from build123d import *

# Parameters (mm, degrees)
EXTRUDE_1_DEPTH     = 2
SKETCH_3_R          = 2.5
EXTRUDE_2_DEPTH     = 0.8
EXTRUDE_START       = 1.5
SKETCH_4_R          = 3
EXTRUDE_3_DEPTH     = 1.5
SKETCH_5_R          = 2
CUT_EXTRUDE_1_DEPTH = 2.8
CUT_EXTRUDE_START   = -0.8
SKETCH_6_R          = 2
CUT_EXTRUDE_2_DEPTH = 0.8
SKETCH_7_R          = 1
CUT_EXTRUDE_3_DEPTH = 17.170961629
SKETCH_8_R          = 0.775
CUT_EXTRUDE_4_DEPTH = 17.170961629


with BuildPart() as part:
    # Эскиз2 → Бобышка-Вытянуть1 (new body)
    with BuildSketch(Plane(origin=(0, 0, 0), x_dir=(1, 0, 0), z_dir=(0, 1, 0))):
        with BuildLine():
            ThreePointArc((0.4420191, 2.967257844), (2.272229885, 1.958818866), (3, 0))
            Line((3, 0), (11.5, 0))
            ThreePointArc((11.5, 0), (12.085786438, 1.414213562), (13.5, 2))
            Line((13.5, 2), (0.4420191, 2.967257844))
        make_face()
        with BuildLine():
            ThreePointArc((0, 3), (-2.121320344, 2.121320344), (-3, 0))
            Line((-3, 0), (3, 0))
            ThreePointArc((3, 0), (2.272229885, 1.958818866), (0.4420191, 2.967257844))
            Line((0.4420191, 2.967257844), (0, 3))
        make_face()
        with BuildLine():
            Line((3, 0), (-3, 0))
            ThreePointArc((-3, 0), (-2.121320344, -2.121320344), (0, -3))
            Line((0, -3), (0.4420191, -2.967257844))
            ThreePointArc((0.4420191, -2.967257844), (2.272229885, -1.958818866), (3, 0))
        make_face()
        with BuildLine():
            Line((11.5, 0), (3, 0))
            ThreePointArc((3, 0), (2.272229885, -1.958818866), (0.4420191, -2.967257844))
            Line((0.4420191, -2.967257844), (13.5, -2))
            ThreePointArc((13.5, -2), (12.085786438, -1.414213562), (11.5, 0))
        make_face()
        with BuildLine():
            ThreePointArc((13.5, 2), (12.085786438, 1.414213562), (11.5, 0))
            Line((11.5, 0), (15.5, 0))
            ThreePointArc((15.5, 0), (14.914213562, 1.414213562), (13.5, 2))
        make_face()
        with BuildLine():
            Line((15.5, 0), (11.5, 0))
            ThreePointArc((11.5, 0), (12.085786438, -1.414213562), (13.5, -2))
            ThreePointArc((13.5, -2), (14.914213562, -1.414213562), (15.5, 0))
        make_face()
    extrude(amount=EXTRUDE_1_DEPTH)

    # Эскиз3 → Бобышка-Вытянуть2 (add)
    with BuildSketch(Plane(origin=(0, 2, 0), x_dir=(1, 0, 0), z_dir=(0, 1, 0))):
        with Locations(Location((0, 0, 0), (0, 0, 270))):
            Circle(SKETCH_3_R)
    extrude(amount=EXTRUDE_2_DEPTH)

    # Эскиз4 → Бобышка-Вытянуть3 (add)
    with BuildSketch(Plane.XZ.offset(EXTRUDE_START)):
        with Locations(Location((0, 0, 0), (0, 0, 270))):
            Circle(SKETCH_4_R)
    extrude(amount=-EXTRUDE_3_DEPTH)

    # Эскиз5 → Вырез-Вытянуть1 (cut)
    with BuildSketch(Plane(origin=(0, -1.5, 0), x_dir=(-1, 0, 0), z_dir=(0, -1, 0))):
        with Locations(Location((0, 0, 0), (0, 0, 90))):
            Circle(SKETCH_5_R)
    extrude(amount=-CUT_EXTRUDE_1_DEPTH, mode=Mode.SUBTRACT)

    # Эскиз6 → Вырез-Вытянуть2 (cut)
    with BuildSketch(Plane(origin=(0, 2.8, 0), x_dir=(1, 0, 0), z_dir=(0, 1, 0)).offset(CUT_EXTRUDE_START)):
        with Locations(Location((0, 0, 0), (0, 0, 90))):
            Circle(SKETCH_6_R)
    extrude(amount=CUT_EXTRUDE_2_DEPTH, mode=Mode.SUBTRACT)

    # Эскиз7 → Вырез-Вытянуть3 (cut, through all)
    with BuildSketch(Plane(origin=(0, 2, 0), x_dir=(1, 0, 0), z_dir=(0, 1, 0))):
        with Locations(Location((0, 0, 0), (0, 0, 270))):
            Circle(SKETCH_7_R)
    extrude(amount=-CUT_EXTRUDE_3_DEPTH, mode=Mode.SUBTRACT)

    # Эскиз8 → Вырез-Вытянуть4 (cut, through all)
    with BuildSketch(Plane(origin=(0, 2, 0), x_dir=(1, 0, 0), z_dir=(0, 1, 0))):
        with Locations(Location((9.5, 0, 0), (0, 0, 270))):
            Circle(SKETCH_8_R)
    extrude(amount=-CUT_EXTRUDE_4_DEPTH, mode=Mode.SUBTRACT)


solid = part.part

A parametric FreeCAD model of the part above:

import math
import FreeCAD as App
import Part
import Sketcher

doc = App.newDocument("Part")
body = doc.addObject("PartDesign::Body", "Body")

sketch1 = body.newObject("Sketcher::SketchObject", "Sketch")
sketch1.AttachmentSupport = (doc.getObject("XZ_Plane"), [""])
sketch1.MapMode = "FlatFace"
sketch1.addGeometry([
    Part.ArcOfCircle(Part.Circle(App.Vector(13.5, 0, 0), App.Vector(0, 0, 1), 2), math.radians(0), math.radians(90)),
    Part.ArcOfCircle(Part.Circle(App.Vector(13.5, 0, 0), App.Vector(0, 0, 1), 2), math.radians(-90), math.radians(0)),
    Part.LineSegment(App.Vector(13.5, -2, 0), App.Vector(0.442019, -2.967258, 0)),
    Part.LineSegment(App.Vector(0.442019, -2.967258, 0), App.Vector(0, -3, 0)),
    Part.ArcOfCircle(Part.Circle(App.Vector(0, 0, 0), App.Vector(0, 0, 1), 3), math.radians(180), math.radians(270)),
    Part.ArcOfCircle(Part.Circle(App.Vector(0, 0, 0), App.Vector(0, 0, 1), 3), math.radians(90), math.radians(180)),
    Part.LineSegment(App.Vector(0, 3, 0), App.Vector(0.442019, 2.967258, 0)),
    Part.LineSegment(App.Vector(0.442019, 2.967258, 0), App.Vector(13.5, 2, 0)),
], False)
sketch1.addConstraint([
    Sketcher.Constraint("Tangent", 0, 1, 1, 2),
    Sketcher.Constraint("Coincident", 1, 1, 2, 1),
    Sketcher.Constraint("Coincident", 2, 2, 3, 1),
    Sketcher.Constraint("Coincident", 3, 2, 4, 2),
    Sketcher.Constraint("Tangent", 4, 1, 5, 2),
    Sketcher.Constraint("Coincident", 5, 1, 6, 1),
    Sketcher.Constraint("Coincident", 6, 2, 7, 1),
    Sketcher.Constraint("Coincident", 7, 2, 0, 2),
    Sketcher.Constraint("Coincident", 4, 3, -1, 1),
    Sketcher.Constraint("Equal", 0, 1),
    Sketcher.Constraint("Equal", 4, 5),
    Sketcher.Constraint("Symmetric", 2, 2, 6, 2, -1),
    Sketcher.Constraint("Symmetric", 1, 1, 7, 2, -1),
    Sketcher.Constraint("PointOnObject", 0, 1, -1),
    Sketcher.Constraint("PointOnObject", 3, 2, -2),
    Sketcher.Constraint("PointOnObject", 4, 1, -1),
    Sketcher.Constraint("PointOnObject", 5, 1, -2),
    Sketcher.Constraint("Parallel", 2, 3),
    Sketcher.Constraint("Vertical", 0, 3, 1, 1),
    Sketcher.Constraint("Radius", 0, 2.0),
    Sketcher.Constraint("Radius", 4, 3.0),
    Sketcher.Constraint("DistanceX", -1, 1, 0, 3, 13.5),
    Sketcher.Constraint("Distance", 3, 0.44323),
])
pad1 = body.newObject("PartDesign::Pad", "Pad")
pad1.Profile = sketch1
pad1.Length = 2
pad1.Reversed = True

sketch2 = body.newObject("Sketcher::SketchObject", "Sketch001")
sketch2.AttachmentSupport = (doc.getObject("XZ_Plane"), [""])
sketch2.MapMode = "FlatFace"
sketch2.AttachmentOffset = App.Placement(App.Vector(0, 0, -2), App.Rotation())
sketch2.addGeometry(Part.Circle(App.Vector(0, 0, 0), App.Vector(0, 0, 1), 2.5), False)
sketch2.addConstraint([
    Sketcher.Constraint("Coincident", 0, 3, -1, 1),
    Sketcher.Constraint("Diameter", 0, 5.0),
])
pad2 = body.newObject("PartDesign::Pad", "Pad001")
pad2.Profile = sketch2
pad2.Length = 0.8
pad2.Reversed = True

sketch3 = body.newObject("Sketcher::SketchObject", "Sketch002")
sketch3.AttachmentSupport = (doc.getObject("XZ_Plane"), [""])
sketch3.MapMode = "FlatFace"
sketch3.AttachmentOffset = App.Placement(App.Vector(0, 0, 1.5), App.Rotation())
sketch3.addGeometry(Part.Circle(App.Vector(0, 0, 0), App.Vector(0, 0, 1), 3), False)
sketch3.addConstraint([
    Sketcher.Constraint("Coincident", 0, 3, -1, 1),
    Sketcher.Constraint("Diameter", 0, 6.0),
])
pad3 = body.newObject("PartDesign::Pad", "Pad002")
pad3.Profile = sketch3
pad3.Length = 1.5
pad3.Reversed = True

sketch4 = body.newObject("Sketcher::SketchObject", "Sketch003")
sketch4.AttachmentSupport = (doc.getObject("XZ_Plane"), [""])
sketch4.MapMode = "FlatFace"
sketch4.AttachmentOffset = App.Placement(App.Vector(0, 0, 1.5), App.Rotation())
sketch4.addGeometry(Part.Circle(App.Vector(0, 0, 0), App.Vector(0, 0, 1), 2), False)
sketch4.addConstraint([
    Sketcher.Constraint("Coincident", 0, 3, -1, 1),
    Sketcher.Constraint("Diameter", 0, 4.0),
])
pocket1 = body.newObject("PartDesign::Pocket", "Pocket")
pocket1.Profile = sketch4
pocket1.Length = 2.8

sketch5 = body.newObject("Sketcher::SketchObject", "Sketch004")
sketch5.AttachmentSupport = (doc.getObject("XZ_Plane"), [""])
sketch5.MapMode = "FlatFace"
sketch5.AttachmentOffset = App.Placement(App.Vector(0, 0, -2), App.Rotation())
sketch5.addGeometry(Part.Circle(App.Vector(0, 0, 0), App.Vector(0, 0, 1), 2), False)
sketch5.addConstraint([
    Sketcher.Constraint("Coincident", 0, 3, -1, 1),
    Sketcher.Constraint("Diameter", 0, 4.0),
])
pocket2 = body.newObject("PartDesign::Pocket", "Pocket001")
pocket2.Profile = sketch5
pocket2.Length = 0.8

sketch6 = body.newObject("Sketcher::SketchObject", "Sketch005")
sketch6.AttachmentSupport = (doc.getObject("XZ_Plane"), [""])
sketch6.MapMode = "FlatFace"
sketch6.AttachmentOffset = App.Placement(App.Vector(0, 0, -2), App.Rotation())
sketch6.addGeometry(Part.Circle(App.Vector(0, 0, 0), App.Vector(0, 0, 1), 1), False)
sketch6.addConstraint([
    Sketcher.Constraint("Coincident", 0, 3, -1, 1),
    Sketcher.Constraint("Diameter", 0, 2.0),
])
pocket3 = body.newObject("PartDesign::Pocket", "Pocket002")
pocket3.Profile = sketch6
pocket3.Type = "ThroughAll"
pocket3.Reversed = True

sketch7 = body.newObject("Sketcher::SketchObject", "Sketch006")
sketch7.AttachmentSupport = (doc.getObject("XZ_Plane"), [""])
sketch7.MapMode = "FlatFace"
sketch7.AttachmentOffset = App.Placement(App.Vector(0, 0, -2), App.Rotation())
sketch7.addGeometry(Part.Circle(App.Vector(9.5, 0, 0), App.Vector(0, 0, 1), 0.775), False)
sketch7.addConstraint([
    Sketcher.Constraint("PointOnObject", 0, 3, -1),
    Sketcher.Constraint("Diameter", 0, 1.55),
    Sketcher.Constraint("DistanceX", -1, 1, 0, 3, 9.5),
])
pocket4 = body.newObject("PartDesign::Pocket", "Pocket003")
pocket4.Profile = sketch7
pocket4.Type = "ThroughAll"
pocket4.Reversed = True

doc.recompute()
